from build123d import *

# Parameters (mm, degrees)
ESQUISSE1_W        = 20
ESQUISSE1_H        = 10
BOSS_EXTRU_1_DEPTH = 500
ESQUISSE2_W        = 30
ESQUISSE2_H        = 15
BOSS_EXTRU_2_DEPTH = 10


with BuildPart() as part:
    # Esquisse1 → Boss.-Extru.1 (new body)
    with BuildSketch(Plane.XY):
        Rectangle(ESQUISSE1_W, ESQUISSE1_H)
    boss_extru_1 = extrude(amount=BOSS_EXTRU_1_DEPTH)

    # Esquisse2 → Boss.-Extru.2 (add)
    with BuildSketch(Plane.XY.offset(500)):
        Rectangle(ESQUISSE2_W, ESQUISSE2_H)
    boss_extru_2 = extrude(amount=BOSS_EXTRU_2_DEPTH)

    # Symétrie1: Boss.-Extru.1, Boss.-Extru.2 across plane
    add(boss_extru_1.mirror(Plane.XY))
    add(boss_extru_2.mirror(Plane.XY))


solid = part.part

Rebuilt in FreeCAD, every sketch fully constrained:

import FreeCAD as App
import Part
import Sketcher
from FreeCAD import Vector

doc = App.newDocument("Part")
params = doc.addObject("Spreadsheet::Sheet", "Params")
for row, (alias, value) in enumerate([
    ("sketch1_width", "20 mm"),
    ("sketch1_height", "10 mm"),
    ("pad1_length", "500 mm"),
    ("sketch2_width", "30 mm"),
    ("sketch2_height", "15 mm"),
    ("pad2_length", "10 mm"),
], start=1):
    params.set(f"A{row}", alias)
    params.set(f"B{row}", "=" + value)
    params.setAlias(f"B{row}", alias)

body = doc.addObject("PartDesign::Body", "Body")

# Sketch on XY plane
sketch1 = body.newObject("Sketcher::SketchObject", "Sketch")
sketch1.AttachmentSupport = (doc.getObject("XY_Plane"), [""])
sketch1.MapMode = "FlatFace"
sketch1.addGeometry(Part.LineSegment(Vector(-10, 5, 0), Vector(-10, -5, 0)), False)
sketch1.addGeometry(Part.LineSegment(Vector(-10, -5, 0), Vector(10, -5, 0)), False)
sketch1.addGeometry(Part.LineSegment(Vector(10, -5, 0), Vector(10, 5, 0)), False)
sketch1.addGeometry(Part.LineSegment(Vector(10, 5, 0), Vector(-10, 5, 0)), False)
sketch1.addConstraint(Sketcher.Constraint("Coincident", 0, 2, 1, 1))
sketch1.addConstraint(Sketcher.Constraint("Coincident", 1, 2, 2, 1))
sketch1.addConstraint(Sketcher.Constraint("Coincident", 2, 2, 3, 1))
sketch1.addConstraint(Sketcher.Constraint("Coincident", 3, 2, 0, 1))
sketch1.addConstraint(Sketcher.Constraint("Vertical", 0))
sketch1.addConstraint(Sketcher.Constraint("Horizontal", 1))
sketch1.addConstraint(Sketcher.Constraint("Vertical", 2))
sketch1.addConstraint(Sketcher.Constraint("Horizontal", 3))
sketch1.addConstraint(Sketcher.Constraint("Symmetric", 0, 2, 2, 2, -1, 1))
sketch1.addConstraint(Sketcher.Constraint("DistanceX", 1, 1, 1, 2, 20.0))
sketch1.addConstraint(Sketcher.Constraint("DistanceY", 0, 2, 0, 1, 10.0))
sketch1.setExpression("Constraints[9]", "Params.sketch1_width")
sketch1.setExpression("Constraints[10]", "Params.sketch1_height")
pad1 = body.newObject("PartDesign::Pad", "Pad")
pad1.Profile = sketch1
pad1.setExpression("Length", "Params.pad1_length")

# Sketch on XY plane
sketch2 = body.newObject("Sketcher::SketchObject", "Sketch001")
sketch2.AttachmentSupport = (doc.getObject("XY_Plane"), [""])
sketch2.MapMode = "FlatFace"
sketch2.AttachmentOffset = App.Placement(Vector(0, 0, 500), App.Rotation())
sketch2.addGeometry(Part.LineSegment(Vector(-15, 8, 0), Vector(-15, -8, 0)), False)
sketch2.addGeometry(Part.LineSegment(Vector(-15, -8, 0), Vector(15, -8, 0)), False)
sketch2.addGeometry(Part.LineSegment(Vector(15, -8, 0), Vector(15, 8, 0)), False)
sketch2.addGeometry(Part.LineSegment(Vector(15, 8, 0), Vector(-15, 8, 0)), False)
sketch2.addConstraint(Sketcher.Constraint("Coincident", 0, 2, 1, 1))
sketch2.addConstraint(Sketcher.Constraint("Coincident", 1, 2, 2, 1))
sketch2.addConstraint(Sketcher.Constraint("Coincident", 2, 2, 3, 1))
sketch2.addConstraint(Sketcher.Constraint("Coincident", 3, 2, 0, 1))
sketch2.addConstraint(Sketcher.Constraint("Vertical", 0))
sketch2.addConstraint(Sketcher.Constraint("Horizontal", 1))
sketch2.addConstraint(Sketcher.Constraint("Vertical", 2))
sketch2.addConstraint(Sketcher.Constraint("Horizontal", 3))
sketch2.addConstraint(Sketcher.Constraint("Symmetric", 0, 2, 2, 2, -1, 1))
sketch2.addConstraint(Sketcher.Constraint("DistanceX", 1, 1, 1, 2, 30.0))
sketch2.addConstraint(Sketcher.Constraint("DistanceY", 0, 2, 0, 1, 15.0))
sketch2.setExpression("Constraints[9]", "Params.sketch2_width")
sketch2.setExpression("Constraints[10]", "Params.sketch2_height")
pad2 = body.newObject("PartDesign::Pad", "Pad001")
pad2.Profile = sketch2
pad2.setExpression("Length", "Params.pad2_length")
doc.recompute()

mirrored = body.newObject("PartDesign::Mirrored", "Mirrored")
mirrored.Originals = [pad1, pad2]
mirrored.MirrorPlane = (doc.getObject("XY_Plane"), [""])
body.Tip = mirrored

doc.recompute()
